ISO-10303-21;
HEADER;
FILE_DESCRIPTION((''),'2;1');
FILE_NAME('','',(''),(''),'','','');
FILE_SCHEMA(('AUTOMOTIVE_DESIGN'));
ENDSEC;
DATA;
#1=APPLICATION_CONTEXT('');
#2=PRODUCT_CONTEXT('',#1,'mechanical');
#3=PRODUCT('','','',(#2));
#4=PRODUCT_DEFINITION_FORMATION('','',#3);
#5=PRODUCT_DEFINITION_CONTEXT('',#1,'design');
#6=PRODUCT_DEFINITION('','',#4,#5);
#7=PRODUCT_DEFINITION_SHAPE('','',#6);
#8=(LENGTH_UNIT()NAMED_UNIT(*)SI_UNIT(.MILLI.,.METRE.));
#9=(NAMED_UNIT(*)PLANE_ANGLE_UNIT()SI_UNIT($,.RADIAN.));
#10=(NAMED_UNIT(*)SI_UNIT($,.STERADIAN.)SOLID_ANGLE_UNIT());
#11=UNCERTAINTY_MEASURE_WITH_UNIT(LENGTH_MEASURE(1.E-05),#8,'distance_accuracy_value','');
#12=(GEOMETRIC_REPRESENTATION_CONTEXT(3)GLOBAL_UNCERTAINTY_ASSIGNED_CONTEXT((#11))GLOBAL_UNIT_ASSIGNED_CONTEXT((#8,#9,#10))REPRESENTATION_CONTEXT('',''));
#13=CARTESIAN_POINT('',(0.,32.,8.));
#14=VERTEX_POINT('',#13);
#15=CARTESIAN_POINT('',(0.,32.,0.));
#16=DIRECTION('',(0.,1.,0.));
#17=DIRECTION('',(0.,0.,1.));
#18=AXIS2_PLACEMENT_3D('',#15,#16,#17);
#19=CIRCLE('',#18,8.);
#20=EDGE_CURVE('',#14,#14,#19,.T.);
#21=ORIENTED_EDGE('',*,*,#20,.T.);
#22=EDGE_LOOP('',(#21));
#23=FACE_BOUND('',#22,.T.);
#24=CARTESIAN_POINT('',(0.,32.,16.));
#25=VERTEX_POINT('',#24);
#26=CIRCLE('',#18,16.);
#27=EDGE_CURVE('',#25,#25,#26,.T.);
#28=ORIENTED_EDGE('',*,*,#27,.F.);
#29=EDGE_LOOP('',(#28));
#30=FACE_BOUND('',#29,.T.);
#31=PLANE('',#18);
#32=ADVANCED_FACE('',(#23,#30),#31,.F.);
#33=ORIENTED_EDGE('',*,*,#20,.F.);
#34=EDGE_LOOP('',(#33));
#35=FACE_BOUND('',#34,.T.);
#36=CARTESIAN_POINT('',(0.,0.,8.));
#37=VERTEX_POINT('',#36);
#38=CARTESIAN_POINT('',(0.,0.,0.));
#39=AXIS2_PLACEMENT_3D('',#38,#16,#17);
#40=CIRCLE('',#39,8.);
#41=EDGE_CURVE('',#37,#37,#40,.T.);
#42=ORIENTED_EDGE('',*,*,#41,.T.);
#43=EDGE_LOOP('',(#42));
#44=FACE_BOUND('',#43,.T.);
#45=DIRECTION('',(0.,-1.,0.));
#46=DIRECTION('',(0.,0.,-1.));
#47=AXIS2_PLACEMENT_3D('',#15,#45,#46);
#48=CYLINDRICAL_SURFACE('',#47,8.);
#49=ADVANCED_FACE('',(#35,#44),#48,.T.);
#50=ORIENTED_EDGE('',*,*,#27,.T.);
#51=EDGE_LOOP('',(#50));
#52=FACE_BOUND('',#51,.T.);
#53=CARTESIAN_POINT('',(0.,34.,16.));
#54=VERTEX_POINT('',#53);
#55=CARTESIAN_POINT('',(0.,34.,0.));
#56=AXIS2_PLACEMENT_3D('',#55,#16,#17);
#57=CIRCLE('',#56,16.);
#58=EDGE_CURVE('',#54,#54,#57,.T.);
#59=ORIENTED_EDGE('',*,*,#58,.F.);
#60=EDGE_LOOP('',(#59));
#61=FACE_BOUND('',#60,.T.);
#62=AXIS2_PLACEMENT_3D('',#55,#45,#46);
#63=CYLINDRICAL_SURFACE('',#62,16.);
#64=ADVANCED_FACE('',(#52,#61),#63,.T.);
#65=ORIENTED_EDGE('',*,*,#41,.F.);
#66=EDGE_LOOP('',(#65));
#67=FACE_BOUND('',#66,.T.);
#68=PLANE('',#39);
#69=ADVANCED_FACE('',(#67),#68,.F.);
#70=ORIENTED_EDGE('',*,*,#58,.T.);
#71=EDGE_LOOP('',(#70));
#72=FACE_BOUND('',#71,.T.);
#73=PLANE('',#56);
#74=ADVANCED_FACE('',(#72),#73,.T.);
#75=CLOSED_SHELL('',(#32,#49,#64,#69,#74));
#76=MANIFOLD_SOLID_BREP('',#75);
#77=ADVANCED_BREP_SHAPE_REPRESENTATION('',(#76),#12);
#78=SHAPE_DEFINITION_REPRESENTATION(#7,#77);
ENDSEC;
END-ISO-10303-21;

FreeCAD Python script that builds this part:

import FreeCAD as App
import Part
import Sketcher
from FreeCAD import Vector
Q = App.Units.Quantity

doc = App.newDocument("Part")
body = doc.addObject("PartDesign::Body", "Body")

# Sketch on XZ plane
sketch1 = body.newObject("Sketcher::SketchObject", "Sketch")
sketch1.AttachmentSupport = (doc.getObject("XZ_Plane"), [""])
sketch1.MapMode = "FlatFace"
sketch1.addGeometry(Part.Circle(Vector(0, 0, 0), Vector(0, 0, 1), 8), False)
sketch1.addConstraint([
    Sketcher.Constraint("Coincident", 0, 3, -1, 1),
    Sketcher.Constraint("Diameter", 0, Q("16 mm")),
])
pad1 = body.newObject("PartDesign::Pad", "Pad")
pad1.Profile = sketch1
pad1.Length = 32
pad1.Reversed = True

# Sketch on XZ plane
sketch2 = body.newObject("Sketcher::SketchObject", "Sketch001")
sketch2.AttachmentSupport = (doc.getObject("XZ_Plane"), [""])
sketch2.MapMode = "FlatFace"
sketch2.AttachmentOffset = App.Placement(Vector(0, 0, -32), App.Rotation())
sketch2.addGeometry(Part.Circle(Vector(0, 0, 0), Vector(0, 0, 1), 16), False)
sketch2.addConstraint([
    Sketcher.Constraint("Coincident", 0, 3, -1, 1),
    Sketcher.Constraint("Diameter", 0, Q("32 mm")),
])
pad2 = body.newObject("PartDesign::Pad", "Pad001")
pad2.Profile = sketch2
pad2.Length = 2
pad2.Reversed = True

doc.recompute()
